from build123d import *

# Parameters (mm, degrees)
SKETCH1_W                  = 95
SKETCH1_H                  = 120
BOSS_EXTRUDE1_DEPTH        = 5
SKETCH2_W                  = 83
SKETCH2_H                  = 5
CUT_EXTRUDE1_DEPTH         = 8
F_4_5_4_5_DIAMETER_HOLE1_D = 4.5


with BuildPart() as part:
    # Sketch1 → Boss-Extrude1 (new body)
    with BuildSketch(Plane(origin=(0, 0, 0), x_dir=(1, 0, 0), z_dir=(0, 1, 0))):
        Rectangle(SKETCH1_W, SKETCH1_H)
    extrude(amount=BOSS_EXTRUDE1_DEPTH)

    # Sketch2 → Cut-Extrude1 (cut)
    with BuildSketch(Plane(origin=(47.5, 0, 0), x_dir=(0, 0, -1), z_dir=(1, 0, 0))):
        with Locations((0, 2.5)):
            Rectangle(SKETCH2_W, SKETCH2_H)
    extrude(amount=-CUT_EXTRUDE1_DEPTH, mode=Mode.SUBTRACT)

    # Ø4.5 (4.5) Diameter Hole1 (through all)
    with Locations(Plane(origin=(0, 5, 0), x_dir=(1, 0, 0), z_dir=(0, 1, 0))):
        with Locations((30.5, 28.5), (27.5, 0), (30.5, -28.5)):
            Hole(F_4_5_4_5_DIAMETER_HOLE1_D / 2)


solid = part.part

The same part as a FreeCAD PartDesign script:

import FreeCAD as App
import Part
import Sketcher
from FreeCAD import Vector


def add_polygon(sketch, points):
    """Adds a closed chain of lines whose ends are joined by coincident constraints."""
    first, n = sketch.GeometryCount, len(points)
    for a, b in zip(points, points[1:] + points[:1]):
        sketch.addGeometry(Part.LineSegment(App.Vector(*a, 0), App.Vector(*b, 0)), False)
    for i in range(n):
        sketch.addConstraint(Sketcher.Constraint("Coincident", first + i, 2, first + (i + 1) % n, 1))

doc = App.newDocument("Part")
params = doc.addObject("Spreadsheet::Sheet", "Params")
for row, (alias, value) in enumerate([
    ("sketch1_width", "95 mm"),
    ("sketch1_height", "120 mm"),
    ("pad1_length", "5 mm"),
    ("sketch2_width", "5 mm"),
    ("sketch2_height", "83 mm"),
    ("pocket1_length", "8 mm"),
    ("sketch3_diameter", "4.5 mm"),
    ("hole_diameter", "4.5 mm"),
], start=1):
    params.set(f"A{row}", alias)
    params.set(f"B{row}", "=" + value)
    params.setAlias(f"B{row}", alias)

body = doc.addObject("PartDesign::Body", "Body")

# Sketch on XZ plane
sketch1 = doc.addObject("Sketcher::SketchObject", "Sketch")
body.addObject(sketch1)
sketch1.AttachmentSupport = (doc.XZ_Plane, [""])
sketch1.MapMode = "FlatFace"
add_polygon(sketch1, [(-47.5, -60), (-47.5, 60), (47.5, 60), (47.5, -60)])  # lines 0-3
sketch1.addConstraint(Sketcher.Constraint("Vertical", 0))
sketch1.addConstraint(Sketcher.Constraint("Horizontal", 1))
sketch1.addConstraint(Sketcher.Constraint("Vertical", 2))
sketch1.addConstraint(Sketcher.Constraint("Horizontal", 3))
sketch1.addConstraint(Sketcher.Constraint("Symmetric", 0, 2, 2, 2, -1, 1))
sketch1.addConstraint(Sketcher.Constraint("DistanceX", 1, 1, 1, 2, 95.0))
sketch1.addConstraint(Sketcher.Constraint("DistanceY", 0, 1, 0, 2, 120.0))
sketch1.setExpression("Constraints[9]", "Params.sketch1_width")
sketch1.setExpression("Constraints[10]", "Params.sketch1_height")
pad1 = doc.addObject("PartDesign::Pad", "Pad")
body.addObject(pad1)
pad1.Profile = sketch1
pad1.setExpression("Length", "Params.pad1_length")
pad1.Reversed = True

# Sketch on YZ plane
sketch2 = doc.addObject("Sketcher::SketchObject", "Sketch001")
body.addObject(sketch2)
sketch2.AttachmentSupport = (doc.YZ_Plane, [""])
sketch2.MapMode = "FlatFace"
sketch2.AttachmentOffset = App.Placement(Vector(0, 0, 47.5), App.Rotation())
add_polygon(sketch2, [(5, 41.5), (0, 41.5), (0, -41.5), (5, -41.5)])  # lines 0-3
sketch2.addConstraint(Sketcher.Constraint("Horizontal", 0))
sketch2.addConstraint(Sketcher.Constraint("Vertical", 1))
sketch2.addConstraint(Sketcher.Constraint("Horizontal", 2))
sketch2.addConstraint(Sketcher.Constraint("Vertical", 3))
sketch2.addConstraint(Sketcher.Constraint("Symmetric", 0, 2, 1, 2, -1, 1))
sketch2.addConstraint(Sketcher.Constraint("DistanceX", 0, 2, 0, 1, 5.0))
sketch2.addConstraint(Sketcher.Constraint("DistanceY", 1, 2, 1, 1, 83.0))
sketch2.setExpression("Constraints[9]", "Params.sketch2_width")
sketch2.setExpression("Constraints[10]", "Params.sketch2_height")
pocket1 = doc.addObject("PartDesign::Pocket", "Pocket")
body.addObject(pocket1)
pocket1.Profile = sketch2
pocket1.setExpression("Length", "Params.pocket1_length")

# Sketch on XZ plane
sketch3 = doc.addObject("Sketcher::SketchObject", "Sketch002")
body.addObject(sketch3)
sketch3.AttachmentSupport = (doc.XZ_Plane, [""])
sketch3.MapMode = "FlatFace"
sketch3.AttachmentOffset = App.Placement(Vector(0, 0, -5), App.Rotation())
sketch3.addGeometry(Part.Circle(Vector(30.5, -28.5, 0), Vector(0, 0, 1), 2.25), False)
sketch3.addGeometry(Part.Circle(Vector(27.5, 0, 0), Vector(0, 0, 1), 2.25), False)
sketch3.addGeometry(Part.Circle(Vector(30.5, 28.5, 0), Vector(0, 0, 1), 2.25), False)
sketch3.addConstraint(Sketcher.Constraint("Equal", 0, 1))
sketch3.addConstraint(Sketcher.Constraint("Equal", 1, 2))
sketch3.addConstraint(Sketcher.Constraint("Symmetric", 0, 3, 2, 3, -1))
sketch3.addConstraint(Sketcher.Constraint("PointOnObject", 1, 3, -1))
sketch3.addConstraint(Sketcher.Constraint("Diameter", 0, 4.5))
sketch3.addConstraint(Sketcher.Constraint("DistanceX", 1, 3, 0, 3, 3.0))
sketch3.addConstraint(Sketcher.Constraint("DistanceY", 0, 3, 2, 3, 57.0))
sketch3.addConstraint(Sketcher.Constraint("DistanceX", -1, 1, 0, 3, 30.5))
sketch3.setExpression("Constraints[4]", "Params.sketch3_diameter")
doc.recompute()
hole = doc.addObject("PartDesign::Hole", "Hole")
body.addObject(hole)
hole.Profile = sketch3
hole.ThreadType = "None"
hole.setExpression("Diameter", "Params.hole_diameter")
hole.DepthType = "ThroughAll"
hole.Reversed = True

doc.recompute()
